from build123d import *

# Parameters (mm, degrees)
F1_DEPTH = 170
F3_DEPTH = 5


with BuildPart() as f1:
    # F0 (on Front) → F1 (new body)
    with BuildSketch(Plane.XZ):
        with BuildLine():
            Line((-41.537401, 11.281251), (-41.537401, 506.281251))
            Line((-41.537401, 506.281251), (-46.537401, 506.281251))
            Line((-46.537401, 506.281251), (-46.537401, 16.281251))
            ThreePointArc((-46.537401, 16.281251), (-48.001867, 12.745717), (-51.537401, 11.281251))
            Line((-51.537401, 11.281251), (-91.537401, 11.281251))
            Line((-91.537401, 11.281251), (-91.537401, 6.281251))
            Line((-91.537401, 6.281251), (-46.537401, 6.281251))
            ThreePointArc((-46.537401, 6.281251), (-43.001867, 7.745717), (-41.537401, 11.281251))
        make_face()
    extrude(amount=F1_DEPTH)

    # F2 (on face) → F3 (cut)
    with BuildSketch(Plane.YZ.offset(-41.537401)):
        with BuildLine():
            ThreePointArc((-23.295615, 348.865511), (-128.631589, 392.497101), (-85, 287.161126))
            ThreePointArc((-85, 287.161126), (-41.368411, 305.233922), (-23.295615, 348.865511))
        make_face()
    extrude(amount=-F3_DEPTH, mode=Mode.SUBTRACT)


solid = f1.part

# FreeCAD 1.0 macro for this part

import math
import FreeCAD as App
import Part
import Sketcher
Q = App.Units.Quantity

doc = App.newDocument("Part")
params = doc.addObject("Spreadsheet::Sheet", "Params")
for row, (alias, value) in enumerate([
    ("sketch1_radius", "5 mm"),
    ("sketch1_width", "40 mm"),
    ("sketch1_height", "495 mm"),
    ("pad1_length", "170 mm"),
    ("pocket1_length", "5 mm"),
], start=1):
    params.set(f"A{row}", alias)
    params.set(f"B{row}", "=" + value)
    params.setAlias(f"B{row}", alias)

body = doc.addObject("PartDesign::Body", "Body")

# Sketch on XZ plane
sketch1 = doc.addObject("Sketcher::SketchObject", "Sketch")
body.addObject(sketch1)
sketch1.AttachmentSupport = (doc.XZ_Plane, [""])
sketch1.MapMode = "FlatFace"
sketch1.addGeometry(Part.LineSegment(App.Vector(-41.537401, 11.281251, 0), App.Vector(-41.537401, 506.281251, 0)), False)
sketch1.addGeometry(Part.LineSegment(App.Vector(-41.537401, 506.281251, 0), App.Vector(-46.537401, 506.281251, 0)), False)
sketch1.addGeometry(Part.LineSegment(App.Vector(-46.537401, 506.281251, 0), App.Vector(-46.537401, 16.281251, 0)), False)
sketch1.addGeometry(Part.ArcOfCircle(Part.Circle(App.Vector(-51.537401, 16.281251, 0), App.Vector(0, 0, 1), 5), math.radians(-90.000004), math.radians(0.000004)), False)
sketch1.addGeometry(Part.LineSegment(App.Vector(-51.537401, 11.281251, 0), App.Vector(-91.537401, 11.281251, 0)), False)
sketch1.addGeometry(Part.LineSegment(App.Vector(-91.537401, 11.281251, 0), App.Vector(-91.537401, 6.281251, 0)), False)
sketch1.addGeometry(Part.LineSegment(App.Vector(-91.537401, 6.281251, 0), App.Vector(-46.537401, 6.281251, 0)), False)
sketch1.addGeometry(Part.ArcOfCircle(Part.Circle(App.Vector(-46.537401, 11.281251, 0), App.Vector(0, 0, 1), 5), math.radians(-90.000004), math.radians(0.000004)), False)
sketch1.addConstraint(Sketcher.Constraint("Coincident", 0, 2, 1, 1))
sketch1.addConstraint(Sketcher.Constraint("Coincident", 1, 2, 2, 1))
sketch1.addConstraint(Sketcher.Constraint("Tangent", 2, 2, 3, 2))
sketch1.addConstraint(Sketcher.Constraint("Tangent", 3, 1, 4, 1))
sketch1.addConstraint(Sketcher.Constraint("Coincident", 4, 2, 5, 1))
sketch1.addConstraint(Sketcher.Constraint("Coincident", 5, 2, 6, 1))
sketch1.addConstraint(Sketcher.Constraint("Tangent", 6, 2, 7, 1))
sketch1.addConstraint(Sketcher.Constraint("Tangent", 7, 2, 0, 1))
sketch1.addConstraint(Sketcher.Constraint("Vertical", 0))
sketch1.addConstraint(Sketcher.Constraint("Horizontal", 1))
sketch1.addConstraint(Sketcher.Constraint("Vertical", 2))
sketch1.addConstraint(Sketcher.Constraint("Horizontal", 4))
sketch1.addConstraint(Sketcher.Constraint("Vertical", 5))
sketch1.addConstraint(Sketcher.Constraint("Horizontal", 6))
sketch1.addConstraint(Sketcher.Constraint("Equal", 3, 7))
sketch1.addConstraint(Sketcher.Constraint("Horizontal", 7, 3, 3, 1))
sketch1.addConstraint(Sketcher.Constraint("Vertical", 7, 3, 1, 2))
sketch1.addConstraint(Sketcher.Constraint("Radius", 3, Q("5 mm")))
sketch1.addConstraint(Sketcher.Constraint("DistanceX", 4, 2, 4, 1, Q("40 mm")))
sketch1.addConstraint(Sketcher.Constraint("DistanceY", 0, 1, 0, 2, Q("495 mm")))
sketch1.addConstraint(Sketcher.Constraint("DistanceX", 3, 3, -1, 1, Q("51.537401 mm")))
sketch1.addConstraint(Sketcher.Constraint("DistanceY", -1, 1, 3, 3, Q("16.281251 mm")))
sketch1.setExpression("Constraints[17]", "Params.sketch1_radius")
sketch1.setExpression("Constraints[18]", "Params.sketch1_width")
sketch1.setExpression("Constraints[19]", "Params.sketch1_height")
pad1 = doc.addObject("PartDesign::Pad", "Pad")
body.addObject(pad1)
pad1.Profile = sketch1
pad1.setExpression("Length", "Params.pad1_length")

# Sketch on YZ plane
sketch2 = doc.addObject("Sketcher::SketchObject", "Sketch001")
body.addObject(sketch2)
sketch2.AttachmentSupport = (doc.YZ_Plane, [""])
sketch2.MapMode = "FlatFace"
sketch2.AttachmentOffset = App.Placement(App.Vector(0, 0, -41.537401), App.Rotation())
sketch2.addGeometry(Part.ArcOfCircle(Part.Circle(App.Vector(-85, 348.865511, 0), App.Vector(0, 0, 1), 61.704385), math.radians(0), math.radians(270)), False)
sketch2.addGeometry(Part.ArcOfCircle(Part.Circle(App.Vector(-85, 348.865511, 0), App.Vector(0, 0, 1), 61.704385), math.radians(-90), math.radians(0)), False)
sketch2.addConstraint(Sketcher.Constraint("Tangent", 0, 1, 1, 2))
sketch2.addConstraint(Sketcher.Constraint("Coincident", 1, 1, 0, 2))
sketch2.addConstraint(Sketcher.Constraint("Horizontal", 1, 3, 0, 1))
sketch2.addConstraint(Sketcher.Constraint("Vertical", 0, 3, 1, 1))
sketch2.addConstraint(Sketcher.Constraint("DistanceX", 0, 3, -1, 1, Q("85 mm")))
sketch2.addConstraint(Sketcher.Constraint("Radius", 0, Q("61.704385 mm")))
sketch2.addConstraint(Sketcher.Constraint("DistanceY", -1, 1, 0, 3, Q("348.865511 mm")))
pocket1 = doc.addObject("PartDesign::Pocket", "Pocket")
body.addObject(pocket1)
pocket1.Profile = sketch2
pocket1.setExpression("Length", "Params.pocket1_length")

doc.recompute()
